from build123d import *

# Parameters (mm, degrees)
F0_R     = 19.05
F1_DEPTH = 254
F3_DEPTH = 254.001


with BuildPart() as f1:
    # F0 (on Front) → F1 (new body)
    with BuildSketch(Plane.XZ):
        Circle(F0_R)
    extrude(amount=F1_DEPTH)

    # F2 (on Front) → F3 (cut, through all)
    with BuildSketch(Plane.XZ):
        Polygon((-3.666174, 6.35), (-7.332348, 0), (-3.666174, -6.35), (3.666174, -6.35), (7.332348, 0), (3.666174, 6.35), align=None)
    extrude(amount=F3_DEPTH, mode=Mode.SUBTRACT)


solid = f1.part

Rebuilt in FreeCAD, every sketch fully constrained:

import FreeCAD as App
import Part
import Sketcher

V = App.Vector
Q = App.Units.Quantity


def add_polygon(sketch, points):
    """Adds a closed chain of lines whose ends are joined by coincident constraints."""
    first, n = sketch.GeometryCount, len(points)
    for a, b in zip(points, points[1:] + points[:1]):
        sketch.addGeometry(Part.LineSegment(App.Vector(*a, 0), App.Vector(*b, 0)), False)
    for i in range(n):
        sketch.addConstraint(Sketcher.Constraint("Coincident", first + i, 2, first + (i + 1) % n, 1))

doc = App.newDocument("Part")
body = doc.addObject("PartDesign::Body", "Body")

# Sketch on XZ plane
sketch1 = body.newObject("Sketcher::SketchObject", "Sketch")
sketch1.AttachmentSupport = (doc.getObject("XZ_Plane"), [""])
sketch1.MapMode = "FlatFace"
sketch1.addGeometry(Part.Circle(V(0, 0, 0), V(0, 0, 1), 19), False)
sketch1.addConstraint([
    Sketcher.Constraint("Coincident", 0, 3, -1, 1),
    Sketcher.Constraint("Diameter", 0, Q("1.5 in")),
])
pad1 = body.newObject("PartDesign::Pad", "Pad")
pad1.Profile = sketch1
pad1.Length = Q("10 in")

# Sketch on XZ plane
sketch2 = body.newObject("Sketcher::SketchObject", "Sketch001")
sketch2.AttachmentSupport = (doc.getObject("XZ_Plane"), [""])
sketch2.MapMode = "FlatFace"
add_polygon(sketch2, [(-4, 6), (-7, 0), (-4, -6), (4, -6), (7, 0), (4, 6)])  # lines 0-5
sketch2.addConstraint([
    Sketcher.Constraint("Horizontal", 2),
    Sketcher.Constraint("Horizontal", 5),
    Sketcher.Constraint("Symmetric", 0, 2, 3, 2, -1, 1),
    Sketcher.Constraint("Symmetric", 1, 2, 4, 2, -1, 1),
    Sketcher.Constraint("PointOnObject", 0, 2, -1),
    Sketcher.Constraint("Parallel", 0, 3),
    Sketcher.Constraint("Vertical", 2, 2, 4, 2),
    Sketcher.Constraint("Angle", 0, Q("-119.999999 deg")),
    Sketcher.Constraint("DistanceY", 2, 2, 4, 2, Q("0.5 in")),
    Sketcher.Constraint("DistanceX", 2, 1, 2, 2, Q("7.332348 mm")),
])
pocket1 = body.newObject("PartDesign::Pocket", "Pocket")
pocket1.Profile = sketch2
pocket1.Type = "ThroughAll"
pocket1.Reversed = True

doc.recompute()
